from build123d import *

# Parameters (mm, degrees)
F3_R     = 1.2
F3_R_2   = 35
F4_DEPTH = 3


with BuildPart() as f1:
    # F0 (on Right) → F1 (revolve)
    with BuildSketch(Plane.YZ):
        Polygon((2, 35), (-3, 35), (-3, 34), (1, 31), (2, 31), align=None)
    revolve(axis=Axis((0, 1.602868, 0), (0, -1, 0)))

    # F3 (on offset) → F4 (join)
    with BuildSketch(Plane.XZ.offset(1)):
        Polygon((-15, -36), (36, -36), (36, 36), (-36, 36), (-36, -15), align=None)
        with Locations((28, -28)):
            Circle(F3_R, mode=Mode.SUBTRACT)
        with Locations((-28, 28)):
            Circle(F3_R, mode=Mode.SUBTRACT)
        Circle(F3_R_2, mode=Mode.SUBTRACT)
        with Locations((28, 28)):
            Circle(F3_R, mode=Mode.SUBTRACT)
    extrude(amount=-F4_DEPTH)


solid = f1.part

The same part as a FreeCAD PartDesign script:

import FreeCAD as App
import Part
import Sketcher


def add_polygon(sketch, points):
    """Adds a closed chain of lines whose ends are joined by coincident constraints."""
    first, n = sketch.GeometryCount, len(points)
    for a, b in zip(points, points[1:] + points[:1]):
        sketch.addGeometry(Part.LineSegment(App.Vector(*a, 0), App.Vector(*b, 0)), False)
    for i in range(n):
        sketch.addConstraint(Sketcher.Constraint("Coincident", first + i, 2, first + (i + 1) % n, 1))

doc = App.newDocument("Part")
body = doc.addObject("PartDesign::Body", "Body")

# Sketch on YZ plane
sketch1 = body.newObject("Sketcher::SketchObject", "Sketch")
sketch1.AttachmentSupport = (doc.getObject("YZ_Plane"), [""])
sketch1.MapMode = "FlatFace"
add_polygon(sketch1, [(2, 35), (-3, 35), (-3, 34), (1, 31), (2, 31)])  # lines 0-4
sketch1.addConstraint([
    Sketcher.Constraint("Horizontal", 0),
    Sketcher.Constraint("Vertical", 1),
    Sketcher.Constraint("Horizontal", 3),
    Sketcher.Constraint("Vertical", 4),
    Sketcher.Constraint("Equal", 3, 1),
    Sketcher.Constraint("DistanceX", 0, 2, 0, 1, 5.0),
    Sketcher.Constraint("DistanceX", 3, 1, 3, 2, 1.0),
    Sketcher.Constraint("DistanceY", 4, 1, 4, 2, 4.0),
    Sketcher.Constraint("DistanceX", 0, 2, -1, 1, 3.0),
    Sketcher.Constraint("DistanceY", -1, 1, 0, 2, 35.0),
])
revolution = body.newObject("PartDesign::Revolution", "Revolution")
revolution.Profile = sketch1
revolution.ReferenceAxis = (sketch1, ["H_Axis"])
revolution.Angle = 360

# Sketch on XZ plane
sketch2 = body.newObject("Sketcher::SketchObject", "Sketch001")
sketch2.AttachmentSupport = (doc.getObject("XZ_Plane"), [""])
sketch2.MapMode = "FlatFace"
sketch2.AttachmentOffset = App.Placement(App.Vector(0, 0, 1), App.Rotation())
add_polygon(sketch2, [(-15, -36), (36, -36), (36, 36), (-36, 36), (-36, -15)])  # lines 0-4
sketch2.addGeometry(Part.Circle(App.Vector(28, -28, 0), App.Vector(0, 0, 1), 1.2), False)  # 5
sketch2.addGeometry(Part.Circle(App.Vector(-28, 28, 0), App.Vector(0, 0, 1), 1.2), False)  # 6
sketch2.addGeometry(Part.Circle(App.Vector(0, 0, 0), App.Vector(0, 0, 1), 35), False)  # 7
sketch2.addGeometry(Part.Circle(App.Vector(28, 28, 0), App.Vector(0, 0, 1), 1.2), False)  # 8
sketch2.addConstraint([
    Sketcher.Constraint("Horizontal", 0),
    Sketcher.Constraint("Vertical", 1),
    Sketcher.Constraint("Horizontal", 2),
    Sketcher.Constraint("Vertical", 3),
    Sketcher.Constraint("Coincident", 7, 3, -1, 1),
    Sketcher.Constraint("Equal", 5, 6),
    Sketcher.Constraint("Equal", 6, 8),
    Sketcher.Constraint("Symmetric", 5, 3, 6, 3, -1, 1),
    Sketcher.Constraint("Symmetric", 0, 2, 2, 2, -1, 1),
    Sketcher.Constraint("Symmetric", 6, 3, 8, 3, -2),
    Sketcher.Constraint("Equal", 2, 1),
    Sketcher.Constraint("Equal", 0, 3),
    Sketcher.Constraint("Diameter", 7, 70.0),
    Sketcher.Constraint("Diameter", 5, 2.4),
    Sketcher.Constraint("DistanceX", 0, 1, 0, 2, 51.0),
    Sketcher.Constraint("DistanceX", 2, 2, 2, 1, 72.0),
    Sketcher.Constraint("DistanceX", -1, 1, 5, 3, 28.0),
    Sketcher.Constraint("DistanceY", 5, 3, -1, 1, 28.0),
])
pad1 = body.newObject("PartDesign::Pad", "Pad")
pad1.Profile = sketch2
pad1.Length = 3
pad1.Reversed = True

doc.recompute()
